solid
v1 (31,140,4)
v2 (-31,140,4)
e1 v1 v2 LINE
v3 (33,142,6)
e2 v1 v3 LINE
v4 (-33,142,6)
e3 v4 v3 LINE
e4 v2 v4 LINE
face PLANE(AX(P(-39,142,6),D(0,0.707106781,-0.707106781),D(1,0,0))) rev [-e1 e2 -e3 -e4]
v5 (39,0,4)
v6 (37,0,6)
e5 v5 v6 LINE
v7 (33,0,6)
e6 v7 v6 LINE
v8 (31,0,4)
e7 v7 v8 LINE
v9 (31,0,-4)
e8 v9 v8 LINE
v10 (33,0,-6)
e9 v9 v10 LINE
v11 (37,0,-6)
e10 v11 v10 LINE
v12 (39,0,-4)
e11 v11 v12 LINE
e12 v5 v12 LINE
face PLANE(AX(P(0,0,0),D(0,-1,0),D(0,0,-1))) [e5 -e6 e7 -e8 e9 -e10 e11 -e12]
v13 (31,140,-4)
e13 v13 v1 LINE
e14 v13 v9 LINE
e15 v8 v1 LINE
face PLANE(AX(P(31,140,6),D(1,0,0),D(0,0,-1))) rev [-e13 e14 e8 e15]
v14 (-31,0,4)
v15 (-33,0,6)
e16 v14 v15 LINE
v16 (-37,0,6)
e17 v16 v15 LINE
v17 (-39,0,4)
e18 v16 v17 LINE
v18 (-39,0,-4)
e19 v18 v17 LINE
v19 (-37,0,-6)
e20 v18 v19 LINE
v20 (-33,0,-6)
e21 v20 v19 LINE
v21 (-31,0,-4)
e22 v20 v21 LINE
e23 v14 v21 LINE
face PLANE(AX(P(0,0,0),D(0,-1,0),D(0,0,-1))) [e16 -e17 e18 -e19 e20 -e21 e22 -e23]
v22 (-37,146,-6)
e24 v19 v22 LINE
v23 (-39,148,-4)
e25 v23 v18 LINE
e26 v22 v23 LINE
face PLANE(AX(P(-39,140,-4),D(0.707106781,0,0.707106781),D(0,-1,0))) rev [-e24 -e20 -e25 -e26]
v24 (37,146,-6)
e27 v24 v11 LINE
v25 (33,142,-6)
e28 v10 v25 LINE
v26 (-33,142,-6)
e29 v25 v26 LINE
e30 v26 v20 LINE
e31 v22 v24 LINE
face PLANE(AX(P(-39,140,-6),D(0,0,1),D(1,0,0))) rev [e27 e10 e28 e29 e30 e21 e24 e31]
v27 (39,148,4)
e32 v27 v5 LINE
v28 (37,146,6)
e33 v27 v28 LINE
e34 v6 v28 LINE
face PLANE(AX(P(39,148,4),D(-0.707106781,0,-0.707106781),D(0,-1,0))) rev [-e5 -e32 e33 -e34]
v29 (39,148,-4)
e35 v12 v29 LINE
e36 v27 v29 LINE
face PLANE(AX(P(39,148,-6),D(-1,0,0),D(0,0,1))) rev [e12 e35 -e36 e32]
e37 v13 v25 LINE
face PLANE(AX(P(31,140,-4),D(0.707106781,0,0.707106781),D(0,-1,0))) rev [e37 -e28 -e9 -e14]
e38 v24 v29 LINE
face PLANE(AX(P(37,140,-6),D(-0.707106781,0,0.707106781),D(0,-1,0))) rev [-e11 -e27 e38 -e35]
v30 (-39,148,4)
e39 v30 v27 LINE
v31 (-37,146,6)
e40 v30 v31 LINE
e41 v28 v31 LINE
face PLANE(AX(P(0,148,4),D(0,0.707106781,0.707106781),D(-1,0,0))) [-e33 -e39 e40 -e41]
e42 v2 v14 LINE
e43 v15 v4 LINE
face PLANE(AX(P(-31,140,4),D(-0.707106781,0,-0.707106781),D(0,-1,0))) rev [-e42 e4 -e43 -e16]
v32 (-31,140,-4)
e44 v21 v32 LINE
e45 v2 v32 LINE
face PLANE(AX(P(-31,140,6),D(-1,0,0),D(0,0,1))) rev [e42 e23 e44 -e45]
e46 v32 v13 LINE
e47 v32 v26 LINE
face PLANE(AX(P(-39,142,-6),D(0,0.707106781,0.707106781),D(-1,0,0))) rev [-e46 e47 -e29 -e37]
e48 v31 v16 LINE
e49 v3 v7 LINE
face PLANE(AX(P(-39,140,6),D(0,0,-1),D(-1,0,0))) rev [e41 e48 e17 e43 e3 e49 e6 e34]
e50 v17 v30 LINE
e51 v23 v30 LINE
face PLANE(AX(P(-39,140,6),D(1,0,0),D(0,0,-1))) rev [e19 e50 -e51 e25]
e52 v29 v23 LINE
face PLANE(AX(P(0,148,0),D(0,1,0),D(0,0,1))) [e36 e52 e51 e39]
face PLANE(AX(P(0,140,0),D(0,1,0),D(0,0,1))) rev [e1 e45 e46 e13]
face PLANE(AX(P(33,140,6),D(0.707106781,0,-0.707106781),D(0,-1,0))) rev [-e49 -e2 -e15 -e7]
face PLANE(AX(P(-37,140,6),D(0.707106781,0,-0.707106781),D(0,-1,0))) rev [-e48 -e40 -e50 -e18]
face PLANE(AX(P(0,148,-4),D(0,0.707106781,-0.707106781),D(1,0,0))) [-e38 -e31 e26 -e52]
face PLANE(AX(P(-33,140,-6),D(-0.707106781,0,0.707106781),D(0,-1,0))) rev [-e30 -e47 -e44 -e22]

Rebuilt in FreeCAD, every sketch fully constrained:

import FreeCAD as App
import Part
import Sketcher

V = App.Vector


def edges_at(feature, points):
    """Names of the edges that pass closest to the given points."""
    edges = feature.Shape.Edges
    near = lambda p: min(range(len(edges)), key=lambda i: edges[i].distToShape(Part.Vertex(*p))[0])
    return sorted({f"Edge{near(p) + 1}" for p in points})

doc = App.newDocument("Part")
body = doc.addObject("PartDesign::Body", "Body")

# Sketch on XZ plane
sketch1 = doc.addObject("Sketcher::SketchObject", "Sketch")
body.addObject(sketch1)
sketch1.AttachmentSupport = (doc.XZ_Plane, [""])
sketch1.MapMode = "FlatFace"
sketch1.addGeometry(Part.LineSegment(V(-39, -6, 0), V(-39, 6, 0)), False)
sketch1.addGeometry(Part.LineSegment(V(-39, 6, 0), V(-31, 6, 0)), False)
sketch1.addGeometry(Part.LineSegment(V(-31, 6, 0), V(-31, -6, 0)), False)
sketch1.addGeometry(Part.LineSegment(V(-31, -6, 0), V(-39, -6, 0)), False)
sketch1.addConstraint(Sketcher.Constraint("Coincident", 0, 2, 1, 1))
sketch1.addConstraint(Sketcher.Constraint("Coincident", 1, 2, 2, 1))
sketch1.addConstraint(Sketcher.Constraint("Coincident", 2, 2, 3, 1))
sketch1.addConstraint(Sketcher.Constraint("Coincident", 3, 2, 0, 1))
sketch1.addConstraint(Sketcher.Constraint("Vertical", 0))
sketch1.addConstraint(Sketcher.Constraint("Horizontal", 1))
sketch1.addConstraint(Sketcher.Constraint("Vertical", 2))
sketch1.addConstraint(Sketcher.Constraint("Horizontal", 3))
sketch1.addConstraint(Sketcher.Constraint("DistanceX", 1, 1, 1, 2, 8.0))
sketch1.addConstraint(Sketcher.Constraint("DistanceY", 0, 1, 0, 2, 12.0))
sketch1.addConstraint(Sketcher.Constraint("DistanceX", 0, 2, -1, 1, 39.0))
sketch1.addConstraint(Sketcher.Constraint("DistanceY", -1, 1, 0, 2, 6.0))
pad1 = doc.addObject("PartDesign::Pad", "Pad")
body.addObject(pad1)
pad1.Profile = sketch1
pad1.Length = 140
pad1.Reversed = True
body2 = doc.addObject("PartDesign::Body", "Body001")

# Sketch on XZ plane
sketch2 = doc.addObject("Sketcher::SketchObject", "Sketch001")
body2.addObject(sketch2)
sketch2.AttachmentSupport = (doc.getObject("XZ_Plane001"), [""])
sketch2.MapMode = "FlatFace"
sketch2.addGeometry(Part.LineSegment(V(31, -6, 0), V(31, 6, 0)), False)
sketch2.addGeometry(Part.LineSegment(V(31, 6, 0), V(39, 6, 0)), False)
sketch2.addGeometry(Part.LineSegment(V(39, 6, 0), V(39, -6, 0)), False)
sketch2.addGeometry(Part.LineSegment(V(39, -6, 0), V(31, -6, 0)), False)
sketch2.addConstraint(Sketcher.Constraint("Coincident", 0, 2, 1, 1))
sketch2.addConstraint(Sketcher.Constraint("Coincident", 1, 2, 2, 1))
sketch2.addConstraint(Sketcher.Constraint("Coincident", 2, 2, 3, 1))
sketch2.addConstraint(Sketcher.Constraint("Coincident", 3, 2, 0, 1))
sketch2.addConstraint(Sketcher.Constraint("Vertical", 0))
sketch2.addConstraint(Sketcher.Constraint("Horizontal", 1))
sketch2.addConstraint(Sketcher.Constraint("Vertical", 2))
sketch2.addConstraint(Sketcher.Constraint("Horizontal", 3))
sketch2.addConstraint(Sketcher.Constraint("DistanceX", 1, 1, 1, 2, 8.0))
sketch2.addConstraint(Sketcher.Constraint("DistanceY", 0, 1, 0, 2, 12.0))
sketch2.addConstraint(Sketcher.Constraint("DistanceX", -1, 1, 0, 2, 31.0))
sketch2.addConstraint(Sketcher.Constraint("DistanceY", -1, 1, 0, 2, 6.0))
pad2 = doc.addObject("PartDesign::Pad", "Pad001")
body2.addObject(pad2)
pad2.Profile = sketch2
pad2.Length = 140
pad2.Reversed = True
body.AllowCompound = True
doc.recompute()

boolean = doc.addObject("PartDesign::Boolean", "Boolean")
body.addObject(boolean)
boolean.Type = "Fuse"
boolean.addObjects([body2])

# Sketch on XZ plane
sketch3 = doc.addObject("Sketcher::SketchObject", "Sketch002")
body.addObject(sketch3)
sketch3.AttachmentSupport = (doc.XZ_Plane, [""])
sketch3.MapMode = "FlatFace"
sketch3.AttachmentOffset = App.Placement(V(0, 0, -140), App.Rotation())
sketch3.addGeometry(Part.LineSegment(V(-39, -6, 0), V(-39, 6, 0)), False)
sketch3.addGeometry(Part.LineSegment(V(-39, 6, 0), V(39, 6, 0)), False)
sketch3.addGeometry(Part.LineSegment(V(39, 6, 0), V(39, -6, 0)), False)
sketch3.addGeometry(Part.LineSegment(V(39, -6, 0), V(-39, -6, 0)), False)
sketch3.addConstraint(Sketcher.Constraint("Coincident", 0, 2, 1, 1))
sketch3.addConstraint(Sketcher.Constraint("Coincident", 1, 2, 2, 1))
sketch3.addConstraint(Sketcher.Constraint("Coincident", 2, 2, 3, 1))
sketch3.addConstraint(Sketcher.Constraint("Coincident", 3, 2, 0, 1))
sketch3.addConstraint(Sketcher.Constraint("Vertical", 0))
sketch3.addConstraint(Sketcher.Constraint("Horizontal", 1))
sketch3.addConstraint(Sketcher.Constraint("Vertical", 2))
sketch3.addConstraint(Sketcher.Constraint("Horizontal", 3))
sketch3.addConstraint(Sketcher.Constraint("Symmetric", 0, 2, 2, 2, -1, 1))
sketch3.addConstraint(Sketcher.Constraint("DistanceX", 1, 1, 1, 2, 78.0))
sketch3.addConstraint(Sketcher.Constraint("DistanceY", 0, 1, 0, 2, 12.0))
pad3 = doc.addObject("PartDesign::Pad", "Pad002")
body.addObject(pad3)
pad3.Profile = sketch3
pad3.Length = 8
pad3.Reversed = True
doc.recompute()

chamfer = doc.addObject("PartDesign::Chamfer", "Chamfer")
body.addObject(chamfer)
chamfer.Base = (pad3, edges_at(pad3, [
    (0, 140, 6),
    (39, 74, 6),
    (39, 74, -6),
    (0, 148, 6),
    (0, 148, -6),
    (0, 140, -6),
    (31, 70, -6),
    (31, 70, 6),
    (-31, 70, 6),
    (-39, 74, 6),
    (-39, 74, -6),
    (-31, 70, -6),
]))
chamfer.Size = 2

doc.recompute()
